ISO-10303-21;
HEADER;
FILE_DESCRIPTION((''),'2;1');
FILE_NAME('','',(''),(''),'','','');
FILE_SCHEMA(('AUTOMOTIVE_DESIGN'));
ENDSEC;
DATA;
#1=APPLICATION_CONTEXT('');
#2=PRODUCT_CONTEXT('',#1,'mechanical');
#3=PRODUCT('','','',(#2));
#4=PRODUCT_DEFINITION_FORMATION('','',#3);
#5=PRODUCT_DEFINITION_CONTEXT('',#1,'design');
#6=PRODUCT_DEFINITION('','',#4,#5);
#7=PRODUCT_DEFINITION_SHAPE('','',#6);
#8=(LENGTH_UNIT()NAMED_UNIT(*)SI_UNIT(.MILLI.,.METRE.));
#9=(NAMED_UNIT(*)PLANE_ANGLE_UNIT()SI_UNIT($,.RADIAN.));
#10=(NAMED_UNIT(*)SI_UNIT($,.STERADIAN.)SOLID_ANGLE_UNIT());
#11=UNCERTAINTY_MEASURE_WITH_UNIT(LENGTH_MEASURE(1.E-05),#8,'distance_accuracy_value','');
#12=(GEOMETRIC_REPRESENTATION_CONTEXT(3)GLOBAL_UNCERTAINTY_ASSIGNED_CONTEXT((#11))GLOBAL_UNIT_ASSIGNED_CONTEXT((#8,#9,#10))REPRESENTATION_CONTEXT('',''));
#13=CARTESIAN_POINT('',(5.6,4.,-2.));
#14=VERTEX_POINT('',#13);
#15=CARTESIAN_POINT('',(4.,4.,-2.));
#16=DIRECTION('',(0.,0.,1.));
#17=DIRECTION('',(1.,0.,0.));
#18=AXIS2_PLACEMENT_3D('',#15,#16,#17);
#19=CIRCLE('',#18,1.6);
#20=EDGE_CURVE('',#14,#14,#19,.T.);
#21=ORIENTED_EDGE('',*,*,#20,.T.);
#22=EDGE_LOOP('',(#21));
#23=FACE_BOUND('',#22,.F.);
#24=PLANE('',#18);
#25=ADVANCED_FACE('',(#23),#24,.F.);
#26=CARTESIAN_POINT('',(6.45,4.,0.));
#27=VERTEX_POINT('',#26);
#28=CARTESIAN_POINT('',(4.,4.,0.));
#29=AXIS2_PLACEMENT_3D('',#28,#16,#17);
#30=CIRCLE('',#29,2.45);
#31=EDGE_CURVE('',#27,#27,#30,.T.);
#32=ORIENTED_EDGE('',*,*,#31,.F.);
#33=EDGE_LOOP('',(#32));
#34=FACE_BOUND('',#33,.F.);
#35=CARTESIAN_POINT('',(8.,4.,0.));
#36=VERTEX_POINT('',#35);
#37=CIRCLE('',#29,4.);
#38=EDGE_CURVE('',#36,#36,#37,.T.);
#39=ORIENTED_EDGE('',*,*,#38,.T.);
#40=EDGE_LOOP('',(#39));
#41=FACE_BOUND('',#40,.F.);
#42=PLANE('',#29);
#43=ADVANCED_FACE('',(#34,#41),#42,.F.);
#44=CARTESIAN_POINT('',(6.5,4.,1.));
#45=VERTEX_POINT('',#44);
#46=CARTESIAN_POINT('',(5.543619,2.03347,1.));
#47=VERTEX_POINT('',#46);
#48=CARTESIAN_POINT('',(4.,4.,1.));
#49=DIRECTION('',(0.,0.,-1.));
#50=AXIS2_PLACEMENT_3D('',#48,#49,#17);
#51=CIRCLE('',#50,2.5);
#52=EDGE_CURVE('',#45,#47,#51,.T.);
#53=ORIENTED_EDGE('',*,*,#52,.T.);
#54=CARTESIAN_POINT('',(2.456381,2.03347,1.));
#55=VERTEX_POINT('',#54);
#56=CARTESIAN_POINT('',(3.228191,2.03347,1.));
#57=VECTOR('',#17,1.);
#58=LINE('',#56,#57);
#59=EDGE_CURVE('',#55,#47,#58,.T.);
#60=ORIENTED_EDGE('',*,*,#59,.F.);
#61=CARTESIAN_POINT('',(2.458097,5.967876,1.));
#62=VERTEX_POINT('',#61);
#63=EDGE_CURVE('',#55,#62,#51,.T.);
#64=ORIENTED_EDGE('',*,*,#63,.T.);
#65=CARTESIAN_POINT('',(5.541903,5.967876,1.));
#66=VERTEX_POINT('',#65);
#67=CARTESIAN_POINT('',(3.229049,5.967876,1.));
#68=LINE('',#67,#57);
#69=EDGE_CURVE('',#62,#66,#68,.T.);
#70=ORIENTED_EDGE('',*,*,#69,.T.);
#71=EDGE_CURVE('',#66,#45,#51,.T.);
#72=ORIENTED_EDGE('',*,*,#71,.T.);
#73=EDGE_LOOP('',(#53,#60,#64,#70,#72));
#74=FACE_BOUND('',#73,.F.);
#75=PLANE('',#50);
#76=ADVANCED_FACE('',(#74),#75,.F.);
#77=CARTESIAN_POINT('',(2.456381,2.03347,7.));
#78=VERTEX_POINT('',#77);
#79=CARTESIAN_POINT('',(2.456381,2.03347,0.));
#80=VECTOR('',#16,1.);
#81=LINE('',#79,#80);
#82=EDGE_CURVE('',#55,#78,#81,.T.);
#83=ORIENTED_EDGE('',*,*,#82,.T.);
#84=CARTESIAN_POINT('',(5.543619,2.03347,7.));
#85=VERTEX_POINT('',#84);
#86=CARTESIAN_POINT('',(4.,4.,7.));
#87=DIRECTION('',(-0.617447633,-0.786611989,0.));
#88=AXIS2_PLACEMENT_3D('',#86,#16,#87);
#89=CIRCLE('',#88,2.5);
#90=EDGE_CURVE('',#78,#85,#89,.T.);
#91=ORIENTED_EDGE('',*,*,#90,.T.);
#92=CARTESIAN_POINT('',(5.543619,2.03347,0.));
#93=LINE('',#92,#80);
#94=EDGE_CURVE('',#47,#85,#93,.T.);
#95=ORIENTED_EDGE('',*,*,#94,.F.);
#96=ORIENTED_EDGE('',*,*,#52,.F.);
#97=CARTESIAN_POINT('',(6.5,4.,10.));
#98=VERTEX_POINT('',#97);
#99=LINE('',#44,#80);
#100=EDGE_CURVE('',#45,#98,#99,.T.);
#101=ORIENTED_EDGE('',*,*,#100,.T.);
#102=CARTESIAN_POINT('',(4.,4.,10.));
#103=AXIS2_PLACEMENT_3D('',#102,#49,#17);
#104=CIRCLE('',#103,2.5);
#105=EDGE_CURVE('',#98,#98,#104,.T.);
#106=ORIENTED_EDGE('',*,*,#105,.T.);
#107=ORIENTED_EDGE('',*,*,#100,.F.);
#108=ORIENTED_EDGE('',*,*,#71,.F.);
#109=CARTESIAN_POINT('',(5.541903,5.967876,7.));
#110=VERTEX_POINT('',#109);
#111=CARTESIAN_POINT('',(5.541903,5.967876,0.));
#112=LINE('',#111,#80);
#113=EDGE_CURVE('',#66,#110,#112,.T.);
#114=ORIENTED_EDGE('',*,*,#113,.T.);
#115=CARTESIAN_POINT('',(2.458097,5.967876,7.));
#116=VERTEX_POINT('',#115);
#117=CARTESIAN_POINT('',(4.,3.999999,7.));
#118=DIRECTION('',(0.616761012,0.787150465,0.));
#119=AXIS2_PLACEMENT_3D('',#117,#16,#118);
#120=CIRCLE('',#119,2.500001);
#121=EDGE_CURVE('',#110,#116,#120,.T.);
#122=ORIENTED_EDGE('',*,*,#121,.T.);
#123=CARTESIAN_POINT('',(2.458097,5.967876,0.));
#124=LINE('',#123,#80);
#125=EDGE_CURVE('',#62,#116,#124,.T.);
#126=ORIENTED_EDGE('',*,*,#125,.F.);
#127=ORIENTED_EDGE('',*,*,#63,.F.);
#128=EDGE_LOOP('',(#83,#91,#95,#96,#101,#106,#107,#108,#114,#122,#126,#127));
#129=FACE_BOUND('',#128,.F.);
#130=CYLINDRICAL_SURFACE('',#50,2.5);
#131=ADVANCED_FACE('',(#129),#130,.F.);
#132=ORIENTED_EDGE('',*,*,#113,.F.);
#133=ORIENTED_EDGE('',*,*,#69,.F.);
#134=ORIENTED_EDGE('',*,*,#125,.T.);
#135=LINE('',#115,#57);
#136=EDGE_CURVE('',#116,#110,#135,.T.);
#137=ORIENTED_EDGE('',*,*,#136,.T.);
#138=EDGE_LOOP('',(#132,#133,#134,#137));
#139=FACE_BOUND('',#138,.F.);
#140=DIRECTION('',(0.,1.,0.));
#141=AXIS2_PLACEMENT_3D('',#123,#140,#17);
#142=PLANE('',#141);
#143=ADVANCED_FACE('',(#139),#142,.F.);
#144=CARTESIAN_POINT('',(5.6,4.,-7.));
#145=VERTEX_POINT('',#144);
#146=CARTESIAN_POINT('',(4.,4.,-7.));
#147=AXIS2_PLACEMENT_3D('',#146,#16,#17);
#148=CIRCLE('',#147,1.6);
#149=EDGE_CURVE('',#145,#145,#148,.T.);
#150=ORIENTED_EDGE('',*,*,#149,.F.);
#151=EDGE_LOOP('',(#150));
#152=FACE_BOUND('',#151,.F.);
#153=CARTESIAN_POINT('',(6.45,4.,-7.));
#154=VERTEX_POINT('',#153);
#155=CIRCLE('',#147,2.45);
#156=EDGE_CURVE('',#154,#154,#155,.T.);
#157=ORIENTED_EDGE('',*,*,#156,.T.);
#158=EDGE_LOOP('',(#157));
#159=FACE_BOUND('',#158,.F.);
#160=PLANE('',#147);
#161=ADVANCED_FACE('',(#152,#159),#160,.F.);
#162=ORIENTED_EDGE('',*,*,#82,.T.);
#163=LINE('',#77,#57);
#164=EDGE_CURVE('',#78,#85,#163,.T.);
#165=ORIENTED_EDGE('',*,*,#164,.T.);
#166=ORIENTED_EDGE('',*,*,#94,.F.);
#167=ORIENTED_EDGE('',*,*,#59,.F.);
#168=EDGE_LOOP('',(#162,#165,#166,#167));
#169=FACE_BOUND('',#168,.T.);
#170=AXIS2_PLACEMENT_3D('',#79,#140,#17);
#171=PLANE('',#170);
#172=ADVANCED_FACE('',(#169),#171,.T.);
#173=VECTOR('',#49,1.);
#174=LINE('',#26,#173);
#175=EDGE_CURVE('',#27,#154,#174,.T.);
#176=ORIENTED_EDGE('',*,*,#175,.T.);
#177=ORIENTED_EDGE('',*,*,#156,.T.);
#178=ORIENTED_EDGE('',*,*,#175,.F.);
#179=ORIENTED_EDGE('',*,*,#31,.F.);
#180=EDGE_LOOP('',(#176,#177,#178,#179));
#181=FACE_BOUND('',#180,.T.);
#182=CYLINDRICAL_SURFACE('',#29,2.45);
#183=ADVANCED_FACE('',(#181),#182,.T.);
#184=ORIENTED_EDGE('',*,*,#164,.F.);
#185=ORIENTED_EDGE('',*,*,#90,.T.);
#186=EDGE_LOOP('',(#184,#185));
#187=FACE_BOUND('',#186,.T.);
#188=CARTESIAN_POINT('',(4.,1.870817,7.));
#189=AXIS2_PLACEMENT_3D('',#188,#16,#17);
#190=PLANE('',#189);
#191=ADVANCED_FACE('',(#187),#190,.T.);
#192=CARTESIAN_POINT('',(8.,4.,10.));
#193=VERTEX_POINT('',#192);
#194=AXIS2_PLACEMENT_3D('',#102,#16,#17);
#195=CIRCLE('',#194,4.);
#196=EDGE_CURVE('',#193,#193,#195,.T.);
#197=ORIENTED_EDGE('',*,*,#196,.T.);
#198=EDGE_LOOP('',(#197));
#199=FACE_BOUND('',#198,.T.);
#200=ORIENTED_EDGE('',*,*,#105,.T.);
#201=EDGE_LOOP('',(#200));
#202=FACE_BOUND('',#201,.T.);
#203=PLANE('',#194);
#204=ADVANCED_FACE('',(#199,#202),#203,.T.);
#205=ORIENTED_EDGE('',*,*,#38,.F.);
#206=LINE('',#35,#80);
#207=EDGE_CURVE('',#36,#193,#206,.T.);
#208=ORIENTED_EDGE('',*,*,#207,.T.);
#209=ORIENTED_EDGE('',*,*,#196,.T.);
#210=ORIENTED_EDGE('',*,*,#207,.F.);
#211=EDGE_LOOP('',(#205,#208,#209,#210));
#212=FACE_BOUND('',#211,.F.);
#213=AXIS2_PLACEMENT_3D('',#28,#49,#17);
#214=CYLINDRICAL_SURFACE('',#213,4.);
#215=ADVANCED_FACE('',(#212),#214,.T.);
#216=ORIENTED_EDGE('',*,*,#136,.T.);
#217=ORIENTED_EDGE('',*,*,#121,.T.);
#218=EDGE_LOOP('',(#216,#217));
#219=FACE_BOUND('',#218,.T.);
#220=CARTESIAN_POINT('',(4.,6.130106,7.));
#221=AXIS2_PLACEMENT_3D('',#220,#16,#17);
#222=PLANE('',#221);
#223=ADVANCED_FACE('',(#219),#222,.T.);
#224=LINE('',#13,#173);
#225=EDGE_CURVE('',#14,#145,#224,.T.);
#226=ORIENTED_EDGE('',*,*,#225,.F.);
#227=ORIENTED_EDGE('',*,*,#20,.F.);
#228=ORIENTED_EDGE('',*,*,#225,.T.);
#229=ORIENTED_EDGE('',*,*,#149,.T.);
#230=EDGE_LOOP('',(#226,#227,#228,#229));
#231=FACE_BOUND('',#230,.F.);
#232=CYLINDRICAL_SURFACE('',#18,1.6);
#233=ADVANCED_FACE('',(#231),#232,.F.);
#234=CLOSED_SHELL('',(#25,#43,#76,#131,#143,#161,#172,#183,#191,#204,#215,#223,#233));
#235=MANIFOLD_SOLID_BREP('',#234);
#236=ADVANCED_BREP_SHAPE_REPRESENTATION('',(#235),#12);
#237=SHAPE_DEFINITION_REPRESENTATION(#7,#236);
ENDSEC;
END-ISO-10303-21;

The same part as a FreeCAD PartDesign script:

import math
import FreeCAD as App
import Part
import Sketcher
from FreeCAD import Vector

doc = App.newDocument("Part")
body = doc.addObject("PartDesign::Body", "Body")

# Sketch on XY plane
sketch1 = doc.addObject("Sketcher::SketchObject", "Sketch")
body.addObject(sketch1)
sketch1.AttachmentSupport = (doc.XY_Plane, [""])
sketch1.MapMode = "FlatFace"
sketch1.addGeometry(Part.Circle(Vector(4, 4, 0), Vector(0, 0, 1), 2.45), False)
sketch1.addConstraint([
    Sketcher.Constraint("Diameter", 0, 4.9),
    Sketcher.Constraint("DistanceX", -1, 1, 0, 3, 4.0),
    Sketcher.Constraint("DistanceY", -1, 1, 0, 3, 4.0),
])
pad1 = doc.addObject("PartDesign::Pad", "Pad")
body.addObject(pad1)
pad1.Profile = sketch1
pad1.Length = 7
pad1.Reversed = True

# Sketch on XY plane
sketch2 = doc.addObject("Sketcher::SketchObject", "Sketch001")
body.addObject(sketch2)
sketch2.AttachmentSupport = (doc.XY_Plane, [""])
sketch2.MapMode = "FlatFace"
sketch2.AttachmentOffset = App.Placement(Vector(0, 0, -2), App.Rotation())
sketch2.addGeometry(Part.Circle(Vector(4, 4, 0), Vector(0, 0, 1), 1.6), False)
sketch2.addConstraint([
    Sketcher.Constraint("Diameter", 0, 3.2),
    Sketcher.Constraint("DistanceX", -1, 1, 0, 3, 4.0),
    Sketcher.Constraint("DistanceY", -1, 1, 0, 3, 4.0),
])
pocket1 = doc.addObject("PartDesign::Pocket", "Pocket")
body.addObject(pocket1)
pocket1.Profile = sketch2
pocket1.Length = 6

# Sketch on XY plane
sketch3 = doc.addObject("Sketcher::SketchObject", "Sketch002")
body.addObject(sketch3)
sketch3.AttachmentSupport = (doc.XY_Plane, [""])
sketch3.MapMode = "FlatFace"
sketch3.addGeometry(Part.Circle(Vector(4, 4, 0), Vector(0, 0, 1), 4), False)
sketch3.addConstraint([
    Sketcher.Constraint("Diameter", 0, 8.0),
    Sketcher.Constraint("DistanceX", -1, 1, 0, 3, 4.0),
    Sketcher.Constraint("DistanceY", -1, 1, 0, 3, 4.0),
])
pad2 = doc.addObject("PartDesign::Pad", "Pad001")
body.addObject(pad2)
pad2.Profile = sketch3
pad2.Length = 10

# Sketch on XY plane
sketch4 = doc.addObject("Sketcher::SketchObject", "Sketch003")
body.addObject(sketch4)
sketch4.AttachmentSupport = (doc.XY_Plane, [""])
sketch4.MapMode = "FlatFace"
sketch4.AttachmentOffset = App.Placement(Vector(0, 0, 1), App.Rotation())
sketch4.addGeometry(Part.Circle(Vector(4, 4, 0), Vector(0, 0, 1), 2.5), False)
sketch4.addConstraint([
    Sketcher.Constraint("Diameter", 0, 5.0),
    Sketcher.Constraint("DistanceX", -1, 1, 0, 3, 4.0),
    Sketcher.Constraint("DistanceY", -1, 1, 0, 3, 4.0),
])
pocket2 = doc.addObject("PartDesign::Pocket", "Pocket001")
body.addObject(pocket2)
pocket2.Profile = sketch4
pocket2.Length = 9
pocket2.Reversed = True

# Sketch on XY plane
sketch5 = doc.addObject("Sketcher::SketchObject", "Sketch004")
body.addObject(sketch5)
sketch5.AttachmentSupport = (doc.XY_Plane, [""])
sketch5.MapMode = "FlatFace"
sketch5.addGeometry([
    Part.ArcOfCircle(Part.Circle(Vector(4, 3.999999, 0), Vector(0, 0, 1), 2.500001), math.radians(51.92001), math.radians(128.07999)),
    Part.LineSegment(Vector(2.458097, 5.967876, 0), Vector(5.541903, 5.967876, 0)),
    Part.ArcOfCircle(Part.Circle(Vector(4, 4, 0), Vector(0, 0, 1), 2.5), math.radians(-128.129986), math.radians(-51.870014)),
    Part.LineSegment(Vector(5.543619, 2.03347, 0), Vector(2.456381, 2.03347, 0)),
], False)
sketch5.addConstraint([
    Sketcher.Constraint("Coincident", 0, 1, 1, 2),
    Sketcher.Constraint("Coincident", 1, 1, 0, 2),
    Sketcher.Constraint("Coincident", 2, 1, 3, 2),
    Sketcher.Constraint("Coincident", 3, 1, 2, 2),
    Sketcher.Constraint("Horizontal", 1),
    Sketcher.Constraint("Horizontal", 3),
    Sketcher.Constraint("Coincident", 2, 3, 0, 3),
    Sketcher.Constraint("Equal", 0, 2),
    Sketcher.Constraint("Radius", 0, 2.500001),
    Sketcher.Constraint("DistanceX", -1, 1, 0, 3, 4.0),
    Sketcher.Constraint("DistanceY", -1, 1, 0, 3, 3.999999),
    Sketcher.Constraint("DistanceX", 1, 1, 1, 2, 3.083806),
    Sketcher.Constraint("DistanceX", 3, 2, 3, 1, 3.087238),
])
pad3 = doc.addObject("PartDesign::Pad", "Pad002")
body.addObject(pad3)
pad3.Profile = sketch5
pad3.Length = 7

doc.recompute()
